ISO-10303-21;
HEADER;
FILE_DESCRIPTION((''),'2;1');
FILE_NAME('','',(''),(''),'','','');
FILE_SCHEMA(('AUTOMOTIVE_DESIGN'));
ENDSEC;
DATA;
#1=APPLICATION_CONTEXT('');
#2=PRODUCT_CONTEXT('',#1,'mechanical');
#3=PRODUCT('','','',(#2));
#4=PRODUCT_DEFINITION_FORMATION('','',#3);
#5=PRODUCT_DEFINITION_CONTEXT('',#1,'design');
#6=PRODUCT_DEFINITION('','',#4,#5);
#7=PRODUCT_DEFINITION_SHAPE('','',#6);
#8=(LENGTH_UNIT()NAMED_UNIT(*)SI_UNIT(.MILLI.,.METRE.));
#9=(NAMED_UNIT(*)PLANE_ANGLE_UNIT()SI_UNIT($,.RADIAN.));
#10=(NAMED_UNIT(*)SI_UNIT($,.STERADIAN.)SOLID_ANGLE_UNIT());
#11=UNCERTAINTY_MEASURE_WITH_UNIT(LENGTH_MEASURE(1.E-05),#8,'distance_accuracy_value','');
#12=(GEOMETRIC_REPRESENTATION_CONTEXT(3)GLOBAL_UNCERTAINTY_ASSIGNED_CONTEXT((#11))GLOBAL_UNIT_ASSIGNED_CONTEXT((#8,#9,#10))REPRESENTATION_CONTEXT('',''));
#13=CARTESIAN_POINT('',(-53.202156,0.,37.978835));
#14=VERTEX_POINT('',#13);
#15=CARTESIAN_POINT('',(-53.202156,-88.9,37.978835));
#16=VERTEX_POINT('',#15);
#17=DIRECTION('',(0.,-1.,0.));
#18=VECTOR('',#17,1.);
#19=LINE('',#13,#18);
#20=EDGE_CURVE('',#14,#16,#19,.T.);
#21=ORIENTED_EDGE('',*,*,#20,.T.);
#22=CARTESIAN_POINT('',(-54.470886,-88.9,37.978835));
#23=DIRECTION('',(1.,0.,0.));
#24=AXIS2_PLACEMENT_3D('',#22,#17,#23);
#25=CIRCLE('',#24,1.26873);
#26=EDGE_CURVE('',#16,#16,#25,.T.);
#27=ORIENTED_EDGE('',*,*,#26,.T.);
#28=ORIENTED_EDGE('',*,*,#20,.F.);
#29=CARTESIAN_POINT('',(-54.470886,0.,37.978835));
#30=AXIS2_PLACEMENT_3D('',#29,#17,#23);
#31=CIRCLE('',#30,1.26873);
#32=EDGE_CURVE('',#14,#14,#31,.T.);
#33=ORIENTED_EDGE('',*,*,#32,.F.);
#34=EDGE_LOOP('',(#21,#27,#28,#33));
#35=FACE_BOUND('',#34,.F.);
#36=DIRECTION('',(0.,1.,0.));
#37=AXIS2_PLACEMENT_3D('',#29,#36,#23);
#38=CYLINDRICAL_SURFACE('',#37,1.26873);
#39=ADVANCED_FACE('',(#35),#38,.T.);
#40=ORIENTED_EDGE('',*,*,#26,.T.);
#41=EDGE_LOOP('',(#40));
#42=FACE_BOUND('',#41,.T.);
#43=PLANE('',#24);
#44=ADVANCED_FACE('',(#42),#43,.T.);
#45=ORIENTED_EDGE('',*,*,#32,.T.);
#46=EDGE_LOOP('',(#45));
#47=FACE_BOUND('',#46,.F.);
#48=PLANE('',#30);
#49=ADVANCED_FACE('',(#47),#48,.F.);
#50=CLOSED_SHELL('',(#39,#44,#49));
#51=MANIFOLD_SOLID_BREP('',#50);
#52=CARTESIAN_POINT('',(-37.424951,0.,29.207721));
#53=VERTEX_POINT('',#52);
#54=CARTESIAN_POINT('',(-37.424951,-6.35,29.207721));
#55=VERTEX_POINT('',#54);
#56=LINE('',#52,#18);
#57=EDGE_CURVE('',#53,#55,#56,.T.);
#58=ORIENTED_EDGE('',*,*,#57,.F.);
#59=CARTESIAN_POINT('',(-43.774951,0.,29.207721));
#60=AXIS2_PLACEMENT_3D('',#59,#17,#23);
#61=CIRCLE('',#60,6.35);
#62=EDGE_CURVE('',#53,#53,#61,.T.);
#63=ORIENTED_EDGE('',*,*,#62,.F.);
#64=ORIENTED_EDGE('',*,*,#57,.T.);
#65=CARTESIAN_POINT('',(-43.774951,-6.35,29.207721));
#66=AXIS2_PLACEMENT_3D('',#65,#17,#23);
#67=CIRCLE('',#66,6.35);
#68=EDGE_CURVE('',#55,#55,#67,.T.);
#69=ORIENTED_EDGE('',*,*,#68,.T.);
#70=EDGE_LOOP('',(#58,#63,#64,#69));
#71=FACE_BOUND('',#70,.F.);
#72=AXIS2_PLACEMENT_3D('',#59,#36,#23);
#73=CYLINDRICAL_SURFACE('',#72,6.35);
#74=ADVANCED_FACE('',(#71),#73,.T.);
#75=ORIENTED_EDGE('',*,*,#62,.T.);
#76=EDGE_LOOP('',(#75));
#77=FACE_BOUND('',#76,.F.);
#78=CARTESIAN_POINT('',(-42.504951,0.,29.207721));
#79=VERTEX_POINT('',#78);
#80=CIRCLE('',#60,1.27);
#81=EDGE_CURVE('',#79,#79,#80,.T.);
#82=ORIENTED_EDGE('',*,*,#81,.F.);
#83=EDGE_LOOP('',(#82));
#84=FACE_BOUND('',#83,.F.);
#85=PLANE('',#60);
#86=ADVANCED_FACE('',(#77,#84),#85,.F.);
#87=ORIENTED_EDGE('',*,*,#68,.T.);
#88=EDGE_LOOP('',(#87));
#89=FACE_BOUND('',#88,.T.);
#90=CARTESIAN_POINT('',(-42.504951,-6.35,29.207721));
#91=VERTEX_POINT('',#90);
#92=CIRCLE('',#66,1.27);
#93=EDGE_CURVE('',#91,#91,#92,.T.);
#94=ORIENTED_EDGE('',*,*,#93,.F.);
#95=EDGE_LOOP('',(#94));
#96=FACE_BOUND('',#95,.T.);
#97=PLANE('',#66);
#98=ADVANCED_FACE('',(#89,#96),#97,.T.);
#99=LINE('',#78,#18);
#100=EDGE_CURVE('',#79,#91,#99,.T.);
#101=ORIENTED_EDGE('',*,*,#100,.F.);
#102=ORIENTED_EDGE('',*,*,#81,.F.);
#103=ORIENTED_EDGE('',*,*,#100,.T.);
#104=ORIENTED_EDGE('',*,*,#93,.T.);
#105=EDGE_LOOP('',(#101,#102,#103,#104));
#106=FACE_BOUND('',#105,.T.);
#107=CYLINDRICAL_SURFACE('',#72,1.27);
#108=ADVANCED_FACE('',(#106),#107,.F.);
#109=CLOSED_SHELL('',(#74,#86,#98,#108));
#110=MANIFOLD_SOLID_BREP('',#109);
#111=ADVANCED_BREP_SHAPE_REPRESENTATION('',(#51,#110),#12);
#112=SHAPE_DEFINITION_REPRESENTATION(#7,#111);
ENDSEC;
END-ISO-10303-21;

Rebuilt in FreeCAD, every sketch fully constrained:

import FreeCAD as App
import Part
import Sketcher
Q = App.Units.Quantity

doc = App.newDocument("Part")
body = doc.addObject("PartDesign::Body", "Body")

# Sketch on XZ plane
sketch1 = doc.addObject("Sketcher::SketchObject", "Sketch")
body.addObject(sketch1)
sketch1.AttachmentSupport = (doc.XZ_Plane, [""])
sketch1.MapMode = "FlatFace"
sketch1.addGeometry(Part.Circle(App.Vector(-54.5, 38, 0), App.Vector(0, 0, 1), 1.3), False)
sketch1.addConstraint([
    Sketcher.Constraint("Diameter", 0, Q("0.0999 in")),
    Sketcher.Constraint("DistanceX", 0, 3, -1, 1, 54.470886),
    Sketcher.Constraint("DistanceY", -1, 1, 0, 3, 37.978835),
])
pad1 = doc.addObject("PartDesign::Pad", "Pad")
body.addObject(pad1)
pad1.Profile = sketch1
pad1.Length = Q("3.5 in")
body2 = doc.addObject("PartDesign::Body", "Body001")

# Sketch on XZ plane
sketch2 = doc.addObject("Sketcher::SketchObject", "Sketch001")
body2.addObject(sketch2)
sketch2.AttachmentSupport = (doc.getObject("XZ_Plane001"), [""])
sketch2.MapMode = "FlatFace"
sketch2.addGeometry([
    Part.Circle(App.Vector(-43.8, 29.2, 0), App.Vector(0, 0, 1), 6.3),
    Part.Circle(App.Vector(-43.8, 29.2, 0), App.Vector(0, 0, 1), 1.3),
], False)
sketch2.addConstraint([
    Sketcher.Constraint("Coincident", 1, 3, 0, 3),
    Sketcher.Constraint("Diameter", 0, Q("0.5 in")),
    Sketcher.Constraint("Diameter", 1, Q("0.1 in")),
    Sketcher.Constraint("DistanceX", 0, 3, -1, 1, 43.774951),
    Sketcher.Constraint("DistanceY", -1, 1, 0, 3, 29.207721),
])
pad2 = doc.addObject("PartDesign::Pad", "Pad001")
body2.addObject(pad2)
pad2.Profile = sketch2
pad2.Length = Q("0.25 in")

doc.recompute()
